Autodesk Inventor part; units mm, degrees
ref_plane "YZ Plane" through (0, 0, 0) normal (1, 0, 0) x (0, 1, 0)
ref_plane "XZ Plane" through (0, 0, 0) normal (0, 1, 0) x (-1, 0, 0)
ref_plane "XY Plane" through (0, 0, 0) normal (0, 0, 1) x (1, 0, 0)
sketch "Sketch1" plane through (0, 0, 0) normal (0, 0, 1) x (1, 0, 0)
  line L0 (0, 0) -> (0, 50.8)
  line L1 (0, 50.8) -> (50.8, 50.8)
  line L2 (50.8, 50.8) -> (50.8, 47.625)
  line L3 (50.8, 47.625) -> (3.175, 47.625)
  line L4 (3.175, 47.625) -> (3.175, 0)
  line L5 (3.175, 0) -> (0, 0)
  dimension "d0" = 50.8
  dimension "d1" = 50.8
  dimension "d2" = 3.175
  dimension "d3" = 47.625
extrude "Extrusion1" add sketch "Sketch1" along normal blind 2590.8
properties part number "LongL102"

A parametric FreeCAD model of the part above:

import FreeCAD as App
import Part
import Sketcher

V = App.Vector
Q = App.Units.Quantity


def add_polygon(sketch, points):
    """Adds a closed chain of lines whose ends are joined by coincident constraints."""
    first, n = sketch.GeometryCount, len(points)
    for a, b in zip(points, points[1:] + points[:1]):
        sketch.addGeometry(Part.LineSegment(App.Vector(*a, 0), App.Vector(*b, 0)), False)
    for i in range(n):
        sketch.addConstraint(Sketcher.Constraint("Coincident", first + i, 2, first + (i + 1) % n, 1))

doc = App.newDocument("Part")
body = doc.addObject("PartDesign::Body", "Body")

sketch1 = doc.addObject("Sketcher::SketchObject", "Sketch")
body.addObject(sketch1)
sketch1.AttachmentSupport = (doc.XY_Plane, [""])
sketch1.MapMode = "FlatFace"
add_polygon(sketch1, [(0, 50.8), (0, 0), (3.2, 0), (3.2, 47.6), (50.8, 47.6), (50.8, 50.8)])
sketch1.addConstraint(Sketcher.Constraint("Vertical", 0))
sketch1.addConstraint(Sketcher.Constraint("Horizontal", 1))
sketch1.addConstraint(Sketcher.Constraint("Vertical", 2))
sketch1.addConstraint(Sketcher.Constraint("Horizontal", 3))
sketch1.addConstraint(Sketcher.Constraint("Vertical", 4))
sketch1.addConstraint(Sketcher.Constraint("Horizontal", 5))
sketch1.addConstraint(Sketcher.Constraint("Coincident", 0, 2, -1, 1))
sketch1.addConstraint(Sketcher.Constraint("Equal", 5, 0))
sketch1.addConstraint(Sketcher.Constraint("Equal", 3, 2))
sketch1.addConstraint(Sketcher.Constraint("DistanceX", 5, 2, 5, 1, Q("2 in")))
sketch1.addConstraint(Sketcher.Constraint("DistanceX", 1, 1, 1, 2, Q("0.125 in")))
pad1 = doc.addObject("PartDesign::Pad", "Pad")
body.addObject(pad1)
pad1.Profile = sketch1
pad1.Length = Q("102 in")

doc.recompute()
